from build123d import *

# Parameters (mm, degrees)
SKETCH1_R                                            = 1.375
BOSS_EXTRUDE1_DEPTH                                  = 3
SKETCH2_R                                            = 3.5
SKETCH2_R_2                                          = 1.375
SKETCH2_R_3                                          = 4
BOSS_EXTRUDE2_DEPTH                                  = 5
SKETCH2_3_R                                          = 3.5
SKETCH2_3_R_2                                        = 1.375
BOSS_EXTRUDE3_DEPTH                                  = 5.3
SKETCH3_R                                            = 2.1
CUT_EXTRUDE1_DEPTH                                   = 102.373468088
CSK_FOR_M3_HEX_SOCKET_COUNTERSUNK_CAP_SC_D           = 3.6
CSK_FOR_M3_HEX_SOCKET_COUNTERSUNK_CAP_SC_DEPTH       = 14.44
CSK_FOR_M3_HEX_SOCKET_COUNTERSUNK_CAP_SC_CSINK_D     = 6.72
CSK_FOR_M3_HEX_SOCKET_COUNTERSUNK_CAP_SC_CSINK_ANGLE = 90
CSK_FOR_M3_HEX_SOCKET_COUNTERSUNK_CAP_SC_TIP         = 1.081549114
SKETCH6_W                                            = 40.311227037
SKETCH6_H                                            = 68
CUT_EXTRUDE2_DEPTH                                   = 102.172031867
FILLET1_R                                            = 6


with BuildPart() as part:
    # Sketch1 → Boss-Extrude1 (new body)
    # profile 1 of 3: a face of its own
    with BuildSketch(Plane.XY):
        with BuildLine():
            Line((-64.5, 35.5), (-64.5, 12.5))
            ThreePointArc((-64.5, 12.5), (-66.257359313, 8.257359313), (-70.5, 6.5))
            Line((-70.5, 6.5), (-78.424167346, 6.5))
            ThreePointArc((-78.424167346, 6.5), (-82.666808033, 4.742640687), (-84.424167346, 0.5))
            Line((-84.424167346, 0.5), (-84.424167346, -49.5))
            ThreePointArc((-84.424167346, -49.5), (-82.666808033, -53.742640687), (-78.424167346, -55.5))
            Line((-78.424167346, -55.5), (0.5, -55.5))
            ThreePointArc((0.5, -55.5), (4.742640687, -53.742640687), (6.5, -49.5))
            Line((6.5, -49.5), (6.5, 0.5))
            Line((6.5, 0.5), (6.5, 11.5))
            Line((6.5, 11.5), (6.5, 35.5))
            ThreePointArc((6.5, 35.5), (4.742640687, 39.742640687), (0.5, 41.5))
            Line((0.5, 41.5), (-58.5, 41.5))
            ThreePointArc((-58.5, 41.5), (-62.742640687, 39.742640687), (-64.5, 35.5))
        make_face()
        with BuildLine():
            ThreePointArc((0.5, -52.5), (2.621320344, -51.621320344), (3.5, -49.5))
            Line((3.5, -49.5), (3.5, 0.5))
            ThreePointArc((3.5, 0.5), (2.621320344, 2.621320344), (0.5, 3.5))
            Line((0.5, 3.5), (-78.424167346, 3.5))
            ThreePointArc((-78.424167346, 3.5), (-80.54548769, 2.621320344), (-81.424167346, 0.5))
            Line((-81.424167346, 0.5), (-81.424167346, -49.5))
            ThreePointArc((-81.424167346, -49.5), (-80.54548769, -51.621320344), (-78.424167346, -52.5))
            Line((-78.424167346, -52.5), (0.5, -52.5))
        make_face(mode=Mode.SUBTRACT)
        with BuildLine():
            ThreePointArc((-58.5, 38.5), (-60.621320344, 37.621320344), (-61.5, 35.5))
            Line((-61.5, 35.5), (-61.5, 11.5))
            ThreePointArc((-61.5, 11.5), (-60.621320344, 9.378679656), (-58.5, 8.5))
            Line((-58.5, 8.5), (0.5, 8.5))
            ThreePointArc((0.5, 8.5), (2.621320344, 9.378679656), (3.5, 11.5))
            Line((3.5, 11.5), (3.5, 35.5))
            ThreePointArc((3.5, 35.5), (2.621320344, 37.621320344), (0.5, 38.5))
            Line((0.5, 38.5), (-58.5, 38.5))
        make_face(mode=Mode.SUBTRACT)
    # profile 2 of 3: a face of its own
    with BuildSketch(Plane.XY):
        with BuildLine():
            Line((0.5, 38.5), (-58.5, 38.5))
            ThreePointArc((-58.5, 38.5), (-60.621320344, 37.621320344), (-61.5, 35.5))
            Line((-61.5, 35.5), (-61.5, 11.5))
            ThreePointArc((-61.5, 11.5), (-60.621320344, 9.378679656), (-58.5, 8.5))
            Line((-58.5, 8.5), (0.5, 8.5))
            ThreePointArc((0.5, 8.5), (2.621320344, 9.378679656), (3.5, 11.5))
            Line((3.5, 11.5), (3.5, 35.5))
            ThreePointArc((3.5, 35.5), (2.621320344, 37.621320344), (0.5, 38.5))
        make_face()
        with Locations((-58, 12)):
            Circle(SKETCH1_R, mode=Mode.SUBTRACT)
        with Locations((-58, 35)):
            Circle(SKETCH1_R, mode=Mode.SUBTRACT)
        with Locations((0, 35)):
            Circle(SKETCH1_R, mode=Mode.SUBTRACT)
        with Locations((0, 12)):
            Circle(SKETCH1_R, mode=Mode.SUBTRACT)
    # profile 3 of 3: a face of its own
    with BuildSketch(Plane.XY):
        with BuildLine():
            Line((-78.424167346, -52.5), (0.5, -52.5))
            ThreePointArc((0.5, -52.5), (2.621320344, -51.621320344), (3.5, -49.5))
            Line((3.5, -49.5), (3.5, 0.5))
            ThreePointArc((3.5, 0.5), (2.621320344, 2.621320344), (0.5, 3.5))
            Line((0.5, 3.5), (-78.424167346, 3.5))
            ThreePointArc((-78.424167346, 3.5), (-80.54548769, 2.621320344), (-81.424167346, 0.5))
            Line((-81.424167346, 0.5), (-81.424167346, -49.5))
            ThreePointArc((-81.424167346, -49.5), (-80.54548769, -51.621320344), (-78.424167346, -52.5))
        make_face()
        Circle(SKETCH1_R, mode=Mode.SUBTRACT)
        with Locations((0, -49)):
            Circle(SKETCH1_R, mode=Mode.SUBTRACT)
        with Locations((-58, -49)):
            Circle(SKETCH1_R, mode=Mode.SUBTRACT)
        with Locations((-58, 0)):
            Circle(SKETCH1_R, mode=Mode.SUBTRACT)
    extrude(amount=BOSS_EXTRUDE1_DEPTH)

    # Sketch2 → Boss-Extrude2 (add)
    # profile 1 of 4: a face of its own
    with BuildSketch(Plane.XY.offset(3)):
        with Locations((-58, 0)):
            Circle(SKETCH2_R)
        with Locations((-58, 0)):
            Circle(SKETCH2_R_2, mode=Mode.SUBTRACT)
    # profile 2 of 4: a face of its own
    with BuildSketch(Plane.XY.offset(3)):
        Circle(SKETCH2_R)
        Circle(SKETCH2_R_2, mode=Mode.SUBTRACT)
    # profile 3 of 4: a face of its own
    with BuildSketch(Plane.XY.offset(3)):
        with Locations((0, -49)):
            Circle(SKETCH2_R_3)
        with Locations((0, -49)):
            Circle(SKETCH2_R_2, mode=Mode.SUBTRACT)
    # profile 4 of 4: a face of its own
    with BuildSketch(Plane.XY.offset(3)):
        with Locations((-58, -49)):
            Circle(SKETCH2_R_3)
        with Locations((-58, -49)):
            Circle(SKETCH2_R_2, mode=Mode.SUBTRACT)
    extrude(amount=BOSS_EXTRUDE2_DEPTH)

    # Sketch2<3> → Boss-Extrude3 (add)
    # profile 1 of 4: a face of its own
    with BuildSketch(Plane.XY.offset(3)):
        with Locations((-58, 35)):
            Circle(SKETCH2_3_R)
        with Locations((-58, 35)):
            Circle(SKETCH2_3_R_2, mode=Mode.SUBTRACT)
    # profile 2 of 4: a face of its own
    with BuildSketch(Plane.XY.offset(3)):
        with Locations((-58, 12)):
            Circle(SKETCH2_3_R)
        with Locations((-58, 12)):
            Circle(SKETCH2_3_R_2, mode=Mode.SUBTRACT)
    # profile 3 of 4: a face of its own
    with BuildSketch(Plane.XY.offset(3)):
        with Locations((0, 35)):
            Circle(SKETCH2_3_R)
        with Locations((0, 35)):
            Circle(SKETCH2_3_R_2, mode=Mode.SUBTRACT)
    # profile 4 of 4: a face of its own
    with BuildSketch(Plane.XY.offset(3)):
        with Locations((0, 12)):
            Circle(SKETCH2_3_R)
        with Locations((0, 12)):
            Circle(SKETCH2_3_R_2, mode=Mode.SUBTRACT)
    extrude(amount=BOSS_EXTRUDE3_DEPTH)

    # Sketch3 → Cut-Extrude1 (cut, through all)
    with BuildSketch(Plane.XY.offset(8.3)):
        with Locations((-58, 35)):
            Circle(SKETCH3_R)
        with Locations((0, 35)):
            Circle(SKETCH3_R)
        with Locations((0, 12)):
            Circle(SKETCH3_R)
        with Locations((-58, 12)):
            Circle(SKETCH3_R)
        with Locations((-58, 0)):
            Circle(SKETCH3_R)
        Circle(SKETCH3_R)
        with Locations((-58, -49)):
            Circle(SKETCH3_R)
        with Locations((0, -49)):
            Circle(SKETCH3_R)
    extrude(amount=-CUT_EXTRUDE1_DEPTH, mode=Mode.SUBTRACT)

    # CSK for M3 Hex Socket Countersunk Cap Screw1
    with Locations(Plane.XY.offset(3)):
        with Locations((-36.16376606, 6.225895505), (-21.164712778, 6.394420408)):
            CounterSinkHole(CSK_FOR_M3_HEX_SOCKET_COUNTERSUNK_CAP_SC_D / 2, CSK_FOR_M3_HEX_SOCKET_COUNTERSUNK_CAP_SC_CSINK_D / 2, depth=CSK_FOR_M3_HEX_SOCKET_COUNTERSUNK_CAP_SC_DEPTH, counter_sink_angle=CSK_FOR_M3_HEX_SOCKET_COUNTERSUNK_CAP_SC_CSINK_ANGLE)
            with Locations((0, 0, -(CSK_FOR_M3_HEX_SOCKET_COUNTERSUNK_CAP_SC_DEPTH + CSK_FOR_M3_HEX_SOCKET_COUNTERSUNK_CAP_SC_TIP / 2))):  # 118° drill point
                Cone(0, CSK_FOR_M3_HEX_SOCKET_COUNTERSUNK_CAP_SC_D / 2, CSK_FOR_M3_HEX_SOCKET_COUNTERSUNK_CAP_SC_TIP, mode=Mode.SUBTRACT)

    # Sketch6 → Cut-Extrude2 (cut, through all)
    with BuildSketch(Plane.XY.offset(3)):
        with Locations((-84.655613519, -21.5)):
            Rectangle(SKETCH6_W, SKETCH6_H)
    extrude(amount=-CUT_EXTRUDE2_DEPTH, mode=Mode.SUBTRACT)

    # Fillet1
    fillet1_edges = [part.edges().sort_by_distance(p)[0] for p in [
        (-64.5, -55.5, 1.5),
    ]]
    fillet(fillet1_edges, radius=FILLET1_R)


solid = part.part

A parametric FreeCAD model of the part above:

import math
import FreeCAD as App
import Part
import Sketcher


def edges_at(feature, points):
    """Names of the edges that pass closest to the given points."""
    edges = feature.Shape.Edges
    near = lambda p: min(range(len(edges)), key=lambda i: edges[i].distToShape(Part.Vertex(*p))[0])
    return sorted({f"Edge{near(p) + 1}" for p in points})

doc = App.newDocument("Part")
body = doc.addObject("PartDesign::Body", "Body")

# Sketch on XY plane
sketch1 = body.newObject("Sketcher::SketchObject", "Sketch")
sketch1.AttachmentSupport = (doc.getObject("XY_Plane"), [""])
sketch1.MapMode = "FlatFace"
sketch1.addGeometry(Part.LineSegment(App.Vector(-64.5, 35.5, 0), App.Vector(-64.5, 12.5, 0)), False)
sketch1.addGeometry(Part.ArcOfCircle(Part.Circle(App.Vector(-70.5, 12.5, 0), App.Vector(0, 0, 1), 6), math.radians(-90), math.radians(0)), False)
sketch1.addGeometry(Part.LineSegment(App.Vector(-70.5, 6.5, 0), App.Vector(-78.4, 6.5, 0)), False)
sketch1.addGeometry(Part.ArcOfCircle(Part.Circle(App.Vector(-78.4, 0.5, 0), App.Vector(0, 0, 1), 6), math.radians(90), math.radians(180)), False)
sketch1.addGeometry(Part.LineSegment(App.Vector(-84.4, 0.5, 0), App.Vector(-84.4, -49.5, 0)), False)
sketch1.addGeometry(Part.ArcOfCircle(Part.Circle(App.Vector(-78.4, -49.5, 0), App.Vector(0, 0, 1), 6), math.radians(180), math.radians(270)), False)
sketch1.addGeometry(Part.LineSegment(App.Vector(-78.4, -55.5, 0), App.Vector(0.5, -55.5, 0)), False)
sketch1.addGeometry(Part.ArcOfCircle(Part.Circle(App.Vector(0.5, -49.5, 0), App.Vector(0, 0, 1), 6), math.radians(-90), math.radians(0)), False)
sketch1.addGeometry(Part.LineSegment(App.Vector(6.5, -49.5, 0), App.Vector(6.5, 35.5, 0)), False)
sketch1.addGeometry(Part.ArcOfCircle(Part.Circle(App.Vector(0.5, 35.5, 0), App.Vector(0, 0, 1), 6), math.radians(0), math.radians(90)), False)
sketch1.addGeometry(Part.LineSegment(App.Vector(0.5, 41.5, 0), App.Vector(-58.5, 41.5, 0)), False)
sketch1.addGeometry(Part.ArcOfCircle(Part.Circle(App.Vector(-58.5, 35.5, 0), App.Vector(0, 0, 1), 6), math.radians(90), math.radians(180)), False)
sketch1.addGeometry(Part.Circle(App.Vector(-58, 0, 0), App.Vector(0, 0, 1), 1.4), False)
sketch1.addGeometry(Part.Circle(App.Vector(-58, -49, 0), App.Vector(0, 0, 1), 1.4), False)
sketch1.addGeometry(Part.Circle(App.Vector(0, 0, 0), App.Vector(0, 0, 1), 1.4), False)
sketch1.addGeometry(Part.Circle(App.Vector(0, -49, 0), App.Vector(0, 0, 1), 1.4), False)
sketch1.addGeometry(Part.Circle(App.Vector(-58, 35, 0), App.Vector(0, 0, 1), 1.4), False)
sketch1.addGeometry(Part.Circle(App.Vector(-58, 12, 0), App.Vector(0, 0, 1), 1.4), False)
sketch1.addGeometry(Part.Circle(App.Vector(0, 35, 0), App.Vector(0, 0, 1), 1.4), False)
sketch1.addGeometry(Part.Circle(App.Vector(0, 12, 0), App.Vector(0, 0, 1), 1.4), False)
sketch1.addConstraint(Sketcher.Constraint("Tangent", 0, 2, 1, 2))
sketch1.addConstraint(Sketcher.Constraint("Tangent", 1, 1, 2, 1))
sketch1.addConstraint(Sketcher.Constraint("Tangent", 2, 2, 3, 1))
sketch1.addConstraint(Sketcher.Constraint("Tangent", 3, 2, 4, 1))
sketch1.addConstraint(Sketcher.Constraint("Tangent", 4, 2, 5, 1))
sketch1.addConstraint(Sketcher.Constraint("Tangent", 5, 2, 6, 1))
sketch1.addConstraint(Sketcher.Constraint("Tangent", 6, 2, 7, 1))
sketch1.addConstraint(Sketcher.Constraint("Tangent", 7, 2, 8, 1))
sketch1.addConstraint(Sketcher.Constraint("Tangent", 8, 2, 9, 1))
sketch1.addConstraint(Sketcher.Constraint("Tangent", 9, 2, 10, 1))
sketch1.addConstraint(Sketcher.Constraint("Tangent", 10, 2, 11, 1))
sketch1.addConstraint(Sketcher.Constraint("Tangent", 11, 2, 0, 1))
sketch1.addConstraint(Sketcher.Constraint("Vertical", 0))
sketch1.addConstraint(Sketcher.Constraint("Horizontal", 2))
sketch1.addConstraint(Sketcher.Constraint("Vertical", 4))
sketch1.addConstraint(Sketcher.Constraint("Horizontal", 6))
sketch1.addConstraint(Sketcher.Constraint("Vertical", 8))
sketch1.addConstraint(Sketcher.Constraint("Horizontal", 10))
sketch1.addConstraint(Sketcher.Constraint("Coincident", 14, 3, -1, 1))
sketch1.addConstraint(Sketcher.Constraint("Equal", 1, 3))
sketch1.addConstraint(Sketcher.Constraint("Equal", 3, 5))
sketch1.addConstraint(Sketcher.Constraint("Equal", 5, 7))
sketch1.addConstraint(Sketcher.Constraint("Equal", 7, 9))
sketch1.addConstraint(Sketcher.Constraint("Equal", 9, 11))
sketch1.addConstraint(Sketcher.Constraint("Equal", 12, 13))
sketch1.addConstraint(Sketcher.Constraint("Equal", 13, 14))
sketch1.addConstraint(Sketcher.Constraint("Equal", 14, 15))
sketch1.addConstraint(Sketcher.Constraint("Equal", 15, 16))
sketch1.addConstraint(Sketcher.Constraint("Equal", 16, 17))
sketch1.addConstraint(Sketcher.Constraint("Equal", 17, 18))
sketch1.addConstraint(Sketcher.Constraint("Equal", 18, 19))
sketch1.addConstraint(Sketcher.Constraint("PointOnObject", 12, 3, -1))
sketch1.addConstraint(Sketcher.Constraint("PointOnObject", 15, 3, -2))
sketch1.addConstraint(Sketcher.Constraint("PointOnObject", 18, 3, -2))
sketch1.addConstraint(Sketcher.Constraint("PointOnObject", 19, 3, -2))
sketch1.addConstraint(Sketcher.Constraint("Horizontal", 13, 3, 15, 3))
sketch1.addConstraint(Sketcher.Constraint("Horizontal", 16, 3, 18, 3))
sketch1.addConstraint(Sketcher.Constraint("Horizontal", 17, 3, 19, 3))
sketch1.addConstraint(Sketcher.Constraint("Vertical", 12, 3, 13, 3))
sketch1.addConstraint(Sketcher.Constraint("Vertical", 13, 3, 16, 3))
sketch1.addConstraint(Sketcher.Constraint("Vertical", 16, 3, 17, 3))
sketch1.addConstraint(Sketcher.Constraint("Radius", 1, 6.0))
sketch1.addConstraint(Sketcher.Constraint("Diameter", 12, 2.75))
sketch1.addConstraint(Sketcher.Constraint("DistanceX", 10, 2, 10, 1, 59.0))
sketch1.addConstraint(Sketcher.Constraint("DistanceY", 0, 2, 0, 1, 23.0))
sketch1.addConstraint(Sketcher.Constraint("DistanceY", 4, 2, 4, 1, 50.0))
sketch1.addConstraint(Sketcher.Constraint("DistanceX", 12, 3, -1, 1, 58.0))
sketch1.addConstraint(Sketcher.Constraint("DistanceY", 13, 3, -1, 1, 49.0))
sketch1.addConstraint(Sketcher.Constraint("DistanceY", -1, 1, 16, 3, 35.0))
sketch1.addConstraint(Sketcher.Constraint("DistanceY", -1, 1, 17, 3, 12.0))
sketch1.addConstraint(Sketcher.Constraint("DistanceX", 1, 3, -1, 1, 70.5))
sketch1.addConstraint(Sketcher.Constraint("DistanceY", -1, 1, 1, 3, 12.5))
sketch1.addConstraint(Sketcher.Constraint("DistanceX", 2, 2, 2, 1, 7.924167))
pad1 = body.newObject("PartDesign::Pad", "Pad")
pad1.Profile = sketch1
pad1.Length = 3

# Sketch on XY plane
sketch2 = body.newObject("Sketcher::SketchObject", "Sketch001")
sketch2.AttachmentSupport = (doc.getObject("XY_Plane"), [""])
sketch2.MapMode = "FlatFace"
sketch2.AttachmentOffset = App.Placement(App.Vector(0, 0, 3), App.Rotation())
sketch2.addGeometry(Part.Circle(App.Vector(-58, 0, 0), App.Vector(0, 0, 1), 3.5), False)
sketch2.addGeometry(Part.Circle(App.Vector(-58, 0, 0), App.Vector(0, 0, 1), 1.4), False)
sketch2.addGeometry(Part.Circle(App.Vector(0, 0, 0), App.Vector(0, 0, 1), 3.5), False)
sketch2.addGeometry(Part.Circle(App.Vector(0, 0, 0), App.Vector(0, 0, 1), 1.4), False)
sketch2.addGeometry(Part.Circle(App.Vector(0, -49, 0), App.Vector(0, 0, 1), 4), False)
sketch2.addGeometry(Part.Circle(App.Vector(0, -49, 0), App.Vector(0, 0, 1), 1.4), False)
sketch2.addGeometry(Part.Circle(App.Vector(-58, -49, 0), App.Vector(0, 0, 1), 4), False)
sketch2.addGeometry(Part.Circle(App.Vector(-58, -49, 0), App.Vector(0, 0, 1), 1.4), False)
sketch2.addConstraint(Sketcher.Constraint("Coincident", 2, 3, -1, 1))
sketch2.addConstraint(Sketcher.Constraint("Coincident", 3, 3, -1, 1))
sketch2.addConstraint(Sketcher.Constraint("Coincident", 1, 3, 0, 3))
sketch2.addConstraint(Sketcher.Constraint("Coincident", 5, 3, 4, 3))
sketch2.addConstraint(Sketcher.Constraint("Coincident", 7, 3, 6, 3))
sketch2.addConstraint(Sketcher.Constraint("Equal", 0, 2))
sketch2.addConstraint(Sketcher.Constraint("Equal", 1, 3))
sketch2.addConstraint(Sketcher.Constraint("Equal", 3, 5))
sketch2.addConstraint(Sketcher.Constraint("Equal", 4, 6))
sketch2.addConstraint(Sketcher.Constraint("Equal", 5, 7))
sketch2.addConstraint(Sketcher.Constraint("PointOnObject", 0, 3, -1))
sketch2.addConstraint(Sketcher.Constraint("PointOnObject", 4, 3, -2))
sketch2.addConstraint(Sketcher.Constraint("Horizontal", 5, 3, 6, 3))
sketch2.addConstraint(Sketcher.Constraint("Vertical", 1, 3, 6, 3))
sketch2.addConstraint(Sketcher.Constraint("Diameter", 0, 7.0))
sketch2.addConstraint(Sketcher.Constraint("Diameter", 4, 8.0))
sketch2.addConstraint(Sketcher.Constraint("Diameter", 1, 2.75))
sketch2.addConstraint(Sketcher.Constraint("DistanceX", 0, 3, -1, 1, 58.0))
sketch2.addConstraint(Sketcher.Constraint("DistanceY", 4, 3, -1, 1, 49.0))
pad2 = body.newObject("PartDesign::Pad", "Pad001")
pad2.Profile = sketch2
pad2.Length = 5

# Sketch on XY plane
sketch3 = body.newObject("Sketcher::SketchObject", "Sketch002")
sketch3.AttachmentSupport = (doc.getObject("XY_Plane"), [""])
sketch3.MapMode = "FlatFace"
sketch3.AttachmentOffset = App.Placement(App.Vector(0, 0, 3), App.Rotation())
sketch3.addGeometry(Part.Circle(App.Vector(-58, 35, 0), App.Vector(0, 0, 1), 3.5), False)
sketch3.addGeometry(Part.Circle(App.Vector(-58, 35, 0), App.Vector(0, 0, 1), 1.4), False)
sketch3.addGeometry(Part.Circle(App.Vector(-58, 12, 0), App.Vector(0, 0, 1), 3.5), False)
sketch3.addGeometry(Part.Circle(App.Vector(-58, 12, 0), App.Vector(0, 0, 1), 1.4), False)
sketch3.addGeometry(Part.Circle(App.Vector(0, 35, 0), App.Vector(0, 0, 1), 3.5), False)
sketch3.addGeometry(Part.Circle(App.Vector(0, 35, 0), App.Vector(0, 0, 1), 1.4), False)
sketch3.addGeometry(Part.Circle(App.Vector(0, 12, 0), App.Vector(0, 0, 1), 3.5), False)
sketch3.addGeometry(Part.Circle(App.Vector(0, 12, 0), App.Vector(0, 0, 1), 1.4), False)
sketch3.addConstraint(Sketcher.Constraint("Coincident", 1, 3, 0, 3))
sketch3.addConstraint(Sketcher.Constraint("Coincident", 3, 3, 2, 3))
sketch3.addConstraint(Sketcher.Constraint("Coincident", 5, 3, 4, 3))
sketch3.addConstraint(Sketcher.Constraint("Coincident", 7, 3, 6, 3))
sketch3.addConstraint(Sketcher.Constraint("Equal", 0, 2))
sketch3.addConstraint(Sketcher.Constraint("Equal", 1, 3))
sketch3.addConstraint(Sketcher.Constraint("Equal", 2, 4))
sketch3.addConstraint(Sketcher.Constraint("Equal", 3, 5))
sketch3.addConstraint(Sketcher.Constraint("Equal", 4, 6))
sketch3.addConstraint(Sketcher.Constraint("Equal", 5, 7))
sketch3.addConstraint(Sketcher.Constraint("PointOnObject", 4, 3, -2))
sketch3.addConstraint(Sketcher.Constraint("PointOnObject", 6, 3, -2))
sketch3.addConstraint(Sketcher.Constraint("Horizontal", 1, 3, 4, 3))
sketch3.addConstraint(Sketcher.Constraint("Horizontal", 3, 3, 6, 3))
sketch3.addConstraint(Sketcher.Constraint("Vertical", 1, 3, 2, 3))
sketch3.addConstraint(Sketcher.Constraint("Diameter", 0, 7.0))
sketch3.addConstraint(Sketcher.Constraint("Diameter", 1, 2.75))
sketch3.addConstraint(Sketcher.Constraint("DistanceX", 0, 3, -1, 1, 58.0))
sketch3.addConstraint(Sketcher.Constraint("DistanceY", -1, 1, 0, 3, 35.0))
sketch3.addConstraint(Sketcher.Constraint("DistanceY", -1, 1, 2, 3, 12.0))
pad3 = body.newObject("PartDesign::Pad", "Pad002")
pad3.Profile = sketch3
pad3.Length = 5.3

# Sketch on XY plane
sketch4 = body.newObject("Sketcher::SketchObject", "Sketch003")
sketch4.AttachmentSupport = (doc.getObject("XY_Plane"), [""])
sketch4.MapMode = "FlatFace"
sketch4.AttachmentOffset = App.Placement(App.Vector(0, 0, 8.3), App.Rotation())
sketch4.addGeometry(Part.Circle(App.Vector(-58, 35, 0), App.Vector(0, 0, 1), 2.1), False)
sketch4.addGeometry(Part.Circle(App.Vector(0, 35, 0), App.Vector(0, 0, 1), 2.1), False)
sketch4.addGeometry(Part.Circle(App.Vector(0, 12, 0), App.Vector(0, 0, 1), 2.1), False)
sketch4.addGeometry(Part.Circle(App.Vector(-58, 12, 0), App.Vector(0, 0, 1), 2.1), False)
sketch4.addGeometry(Part.Circle(App.Vector(-58, 0, 0), App.Vector(0, 0, 1), 2.1), False)
sketch4.addGeometry(Part.Circle(App.Vector(0, 0, 0), App.Vector(0, 0, 1), 2.1), False)
sketch4.addGeometry(Part.Circle(App.Vector(-58, -49, 0), App.Vector(0, 0, 1), 2.1), False)
sketch4.addGeometry(Part.Circle(App.Vector(0, -49, 0), App.Vector(0, 0, 1), 2.1), False)
sketch4.addConstraint(Sketcher.Constraint("Coincident", 5, 3, -1, 1))
sketch4.addConstraint(Sketcher.Constraint("Equal", 0, 1))
sketch4.addConstraint(Sketcher.Constraint("Equal", 1, 2))
sketch4.addConstraint(Sketcher.Constraint("Equal", 2, 3))
sketch4.addConstraint(Sketcher.Constraint("Equal", 3, 4))
sketch4.addConstraint(Sketcher.Constraint("Equal", 4, 5))
sketch4.addConstraint(Sketcher.Constraint("Equal", 5, 6))
sketch4.addConstraint(Sketcher.Constraint("Equal", 6, 7))
sketch4.addConstraint(Sketcher.Constraint("PointOnObject", 1, 3, -2))
sketch4.addConstraint(Sketcher.Constraint("PointOnObject", 2, 3, -2))
sketch4.addConstraint(Sketcher.Constraint("PointOnObject", 4, 3, -1))
sketch4.addConstraint(Sketcher.Constraint("PointOnObject", 7, 3, -2))
sketch4.addConstraint(Sketcher.Constraint("Horizontal", 0, 3, 1, 3))
sketch4.addConstraint(Sketcher.Constraint("Horizontal", 2, 3, 3, 3))
sketch4.addConstraint(Sketcher.Constraint("Horizontal", 6, 3, 7, 3))
sketch4.addConstraint(Sketcher.Constraint("Vertical", 0, 3, 3, 3))
sketch4.addConstraint(Sketcher.Constraint("Vertical", 3, 3, 4, 3))
sketch4.addConstraint(Sketcher.Constraint("Vertical", 4, 3, 6, 3))
sketch4.addConstraint(Sketcher.Constraint("Diameter", 0, 4.2))
sketch4.addConstraint(Sketcher.Constraint("DistanceX", 0, 3, -1, 1, 58.0))
sketch4.addConstraint(Sketcher.Constraint("DistanceY", -1, 1, 0, 3, 35.0))
sketch4.addConstraint(Sketcher.Constraint("DistanceY", -1, 1, 2, 3, 12.0))
sketch4.addConstraint(Sketcher.Constraint("DistanceY", 6, 3, -1, 1, 49.0))
pocket1 = body.newObject("PartDesign::Pocket", "Pocket")
pocket1.Profile = sketch4
pocket1.Type = "ThroughAll"

# Sketch on XY plane
sketch5 = body.newObject("Sketcher::SketchObject", "Sketch004")
sketch5.AttachmentSupport = (doc.getObject("XY_Plane"), [""])
sketch5.MapMode = "FlatFace"
sketch5.AttachmentOffset = App.Placement(App.Vector(0, 0, 3), App.Rotation())
sketch5.addGeometry(Part.Circle(App.Vector(-36.2, 6.2, 0), App.Vector(0, 0, 1), 1.8), False)
sketch5.addGeometry(Part.Circle(App.Vector(-21.2, 6.4, 0), App.Vector(0, 0, 1), 1.8), False)
sketch5.addConstraint(Sketcher.Constraint("Equal", 0, 1))
sketch5.addConstraint(Sketcher.Constraint("Diameter", 0, 3.6))
sketch5.addConstraint(Sketcher.Constraint("DistanceY", -1, 1, 1, 3, 6.39442))
sketch5.addConstraint(Sketcher.Constraint("DistanceX", 0, 3, -1, 1, 36.163766))
sketch5.addConstraint(Sketcher.Constraint("DistanceY", -1, 1, 0, 3, 6.225896))
sketch5.addConstraint(Sketcher.Constraint("DistanceX", 1, 3, -1, 1, 21.164713))
doc.recompute()
hole = body.newObject("PartDesign::Hole", "Hole")
hole.Profile = sketch5
hole.ThreadType = "None"
hole.Diameter = 3.6
hole.DepthType = "Dimension"
hole.Depth = 14.44
hole.DrillPoint = "Angled"
hole.DrillPointAngle = 118
hole.HoleCutType = "Countersink"
hole.HoleCutDiameter = 6.72
hole.HoleCutCountersinkAngle = 90

# Sketch on XY plane
sketch6 = body.newObject("Sketcher::SketchObject", "Sketch005")
sketch6.AttachmentSupport = (doc.getObject("XY_Plane"), [""])
sketch6.MapMode = "FlatFace"
sketch6.AttachmentOffset = App.Placement(App.Vector(0, 0, 3), App.Rotation())
sketch6.addGeometry(Part.LineSegment(App.Vector(-105, 12, 0), App.Vector(-105, -56, 0)), False)
sketch6.addGeometry(Part.LineSegment(App.Vector(-105, -56, 0), App.Vector(-64, -56, 0)), False)
sketch6.addGeometry(Part.LineSegment(App.Vector(-64, -56, 0), App.Vector(-64, 12, 0)), False)
sketch6.addGeometry(Part.LineSegment(App.Vector(-64, 12, 0), App.Vector(-105, 12, 0)), False)
sketch6.addConstraint(Sketcher.Constraint("Coincident", 0, 2, 1, 1))
sketch6.addConstraint(Sketcher.Constraint("Coincident", 1, 2, 2, 1))
sketch6.addConstraint(Sketcher.Constraint("Coincident", 2, 2, 3, 1))
sketch6.addConstraint(Sketcher.Constraint("Coincident", 3, 2, 0, 1))
sketch6.addConstraint(Sketcher.Constraint("Vertical", 0))
sketch6.addConstraint(Sketcher.Constraint("Horizontal", 1))
sketch6.addConstraint(Sketcher.Constraint("Vertical", 2))
sketch6.addConstraint(Sketcher.Constraint("Horizontal", 3))
sketch6.addConstraint(Sketcher.Constraint("DistanceY", 0, 2, 0, 1, 68.0))
sketch6.addConstraint(Sketcher.Constraint("DistanceY", 0, 2, -1, 1, 55.5))
sketch6.addConstraint(Sketcher.Constraint("DistanceX", 1, 2, -1, 1, 64.5))
sketch6.addConstraint(Sketcher.Constraint("DistanceX", 1, 1, 1, 2, 40.311227))
pocket2 = body.newObject("PartDesign::Pocket", "Pocket001")
pocket2.Profile = sketch6
pocket2.Type = "ThroughAll"
doc.recompute()

fillet = body.newObject("PartDesign::Fillet", "Fillet")
fillet.Base = (pocket2, edges_at(pocket2, [(-64.5, -55.5, 1.5)]))
fillet.Radius = 6

doc.recompute()
